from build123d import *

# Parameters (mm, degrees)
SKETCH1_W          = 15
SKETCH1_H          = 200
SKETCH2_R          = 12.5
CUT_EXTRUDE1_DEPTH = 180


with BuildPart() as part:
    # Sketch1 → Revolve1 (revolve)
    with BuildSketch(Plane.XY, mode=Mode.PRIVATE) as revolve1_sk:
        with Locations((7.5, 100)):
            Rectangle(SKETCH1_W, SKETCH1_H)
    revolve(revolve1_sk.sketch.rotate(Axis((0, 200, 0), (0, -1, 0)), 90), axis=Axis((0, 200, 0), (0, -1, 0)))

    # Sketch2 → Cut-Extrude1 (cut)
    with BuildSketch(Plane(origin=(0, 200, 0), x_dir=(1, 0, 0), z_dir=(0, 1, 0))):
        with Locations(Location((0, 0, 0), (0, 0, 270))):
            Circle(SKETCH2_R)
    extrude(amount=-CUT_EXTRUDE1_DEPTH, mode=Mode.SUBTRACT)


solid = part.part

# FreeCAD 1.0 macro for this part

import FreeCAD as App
import Part
import Sketcher
from FreeCAD import Vector

doc = App.newDocument("Part")
body = doc.addObject("PartDesign::Body", "Body")

# Sketch on XY plane
sketch1 = doc.addObject("Sketcher::SketchObject", "Sketch")
body.addObject(sketch1)
sketch1.AttachmentSupport = (doc.XY_Plane, [""])
sketch1.MapMode = "FlatFace"
sketch1.addGeometry([
    Part.LineSegment(Vector(0, 200, 0), Vector(0, 0, 0)),
    Part.LineSegment(Vector(0, 0, 0), Vector(15, 0, 0)),
    Part.LineSegment(Vector(15, 0, 0), Vector(15, 200, 0)),
    Part.LineSegment(Vector(15, 200, 0), Vector(0, 200, 0)),
], False)
sketch1.addConstraint([
    Sketcher.Constraint("Coincident", 0, 2, 1, 1),
    Sketcher.Constraint("Coincident", 1, 2, 2, 1),
    Sketcher.Constraint("Coincident", 2, 2, 3, 1),
    Sketcher.Constraint("Coincident", 3, 2, 0, 1),
    Sketcher.Constraint("Vertical", 0),
    Sketcher.Constraint("Horizontal", 1),
    Sketcher.Constraint("Vertical", 2),
    Sketcher.Constraint("Horizontal", 3),
    Sketcher.Constraint("Coincident", 0, 2, -1, 1),
    Sketcher.Constraint("DistanceX", 1, 1, 1, 2, 15.0),
    Sketcher.Constraint("DistanceY", 0, 2, 0, 1, 200.0),
])
revolution = doc.addObject("PartDesign::Revolution", "Revolution")
body.addObject(revolution)
revolution.Profile = sketch1
revolution.ReferenceAxis = (sketch1, ["V_Axis"])
revolution.Angle = 360

# Sketch on XZ plane
sketch2 = doc.addObject("Sketcher::SketchObject", "Sketch001")
body.addObject(sketch2)
sketch2.AttachmentSupport = (doc.XZ_Plane, [""])
sketch2.MapMode = "FlatFace"
sketch2.AttachmentOffset = App.Placement(Vector(0, 0, -200), App.Rotation())
sketch2.addGeometry(Part.Circle(Vector(0, 0, 0), Vector(0, 0, 1), 12), False)
sketch2.addConstraint([
    Sketcher.Constraint("Coincident", 0, 3, -1, 1),
    Sketcher.Constraint("Diameter", 0, 25.0),
])
pocket1 = doc.addObject("PartDesign::Pocket", "Pocket")
body.addObject(pocket1)
pocket1.Profile = sketch2
pocket1.Length = 180
pocket1.Reversed = True

doc.recompute()
